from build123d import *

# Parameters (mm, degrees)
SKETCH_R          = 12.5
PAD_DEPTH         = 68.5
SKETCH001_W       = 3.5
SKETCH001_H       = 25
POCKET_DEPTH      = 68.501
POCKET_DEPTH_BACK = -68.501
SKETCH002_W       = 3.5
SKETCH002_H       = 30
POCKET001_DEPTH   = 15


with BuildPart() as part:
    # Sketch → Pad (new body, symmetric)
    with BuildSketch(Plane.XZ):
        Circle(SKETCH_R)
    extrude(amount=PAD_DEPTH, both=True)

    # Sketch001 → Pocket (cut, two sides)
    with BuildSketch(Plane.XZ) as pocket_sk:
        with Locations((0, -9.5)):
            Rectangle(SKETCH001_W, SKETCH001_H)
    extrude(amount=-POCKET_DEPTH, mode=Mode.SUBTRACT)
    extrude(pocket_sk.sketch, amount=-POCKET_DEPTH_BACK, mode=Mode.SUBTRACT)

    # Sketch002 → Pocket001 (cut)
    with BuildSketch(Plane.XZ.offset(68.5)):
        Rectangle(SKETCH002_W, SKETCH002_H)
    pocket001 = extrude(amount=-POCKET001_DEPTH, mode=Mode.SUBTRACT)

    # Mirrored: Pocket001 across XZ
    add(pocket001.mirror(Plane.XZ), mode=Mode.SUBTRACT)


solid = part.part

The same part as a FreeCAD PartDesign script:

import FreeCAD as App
import Part
import Sketcher
from FreeCAD import Vector
Q = App.Units.Quantity

doc = App.newDocument("Part")
body = doc.addObject("PartDesign::Body", "Body")

sketch1 = body.newObject("Sketcher::SketchObject", "Sketch")
sketch1.AttachmentSupport = (doc.getObject("XZ_Plane"), [""])
sketch1.MapMode = "FlatFace"
sketch1.addGeometry(Part.Circle(Vector(0, 0, 0), Vector(0, 0, 1), 12), False)
sketch1.addConstraint([
    Sketcher.Constraint("Coincident", 0, 3, -1, 1),
    Sketcher.Constraint("Diameter", 0, Q("25 mm")),
])
pad1 = body.newObject("PartDesign::Pad", "Pad")
pad1.Profile = sketch1
pad1.Length = 137
pad1.Midplane = True

sketch2 = body.newObject("Sketcher::SketchObject", "Sketch001")
sketch2.AttachmentSupport = (doc.getObject("XZ_Plane"), [""])
sketch2.MapMode = "FlatFace"
sketch2.addGeometry([
    Part.LineSegment(Vector(-1.8, 3, 0), Vector(-1.8, -22, 0)),
    Part.LineSegment(Vector(-1.8, -22, 0), Vector(1.8, -22, 0)),
    Part.LineSegment(Vector(1.8, -22, 0), Vector(1.8, 3, 0)),
    Part.LineSegment(Vector(1.8, 3, 0), Vector(-1.8, 3, 0)),
], False)
sketch2.addConstraint([
    Sketcher.Constraint("Coincident", 0, 2, 1, 1),
    Sketcher.Constraint("Coincident", 1, 2, 2, 1),
    Sketcher.Constraint("Coincident", 2, 2, 3, 1),
    Sketcher.Constraint("Coincident", 3, 2, 0, 1),
    Sketcher.Constraint("Vertical", 0),
    Sketcher.Constraint("Horizontal", 1),
    Sketcher.Constraint("Vertical", 2),
    Sketcher.Constraint("Horizontal", 3),
    Sketcher.Constraint("DistanceY", 0, 2, 0, 1, Q("25 mm")),
    Sketcher.Constraint("DistanceX", 1, 1, 1, 2, Q("3.5 mm")),
    Sketcher.Constraint("DistanceY", 0, 2, -1, 1, Q("22 mm")),
    Sketcher.Constraint("DistanceX", 0, 2, -1, 1, Q("1.75 mm")),
])
pocket1 = body.newObject("PartDesign::Pocket", "Pocket")
pocket1.Profile = sketch2
pocket1.Type = "ThroughAll"
pocket1.Midplane = True

sketch3 = body.newObject("Sketcher::SketchObject", "Sketch002")
sketch3.AttachmentSupport = (doc.getObject("XZ_Plane"), [""])
sketch3.MapMode = "FlatFace"
sketch3.AttachmentOffset = App.Placement(Vector(0, 0, 68.5), App.Rotation())
sketch3.addGeometry([
    Part.LineSegment(Vector(-1.8, 15, 0), Vector(-1.8, -15, 0)),
    Part.LineSegment(Vector(-1.8, -15, 0), Vector(1.8, -15, 0)),
    Part.LineSegment(Vector(1.8, -15, 0), Vector(1.8, 15, 0)),
    Part.LineSegment(Vector(1.8, 15, 0), Vector(-1.8, 15, 0)),
], False)
sketch3.addConstraint([
    Sketcher.Constraint("Coincident", 0, 2, 1, 1),
    Sketcher.Constraint("Coincident", 1, 2, 2, 1),
    Sketcher.Constraint("Coincident", 2, 2, 3, 1),
    Sketcher.Constraint("Coincident", 3, 2, 0, 1),
    Sketcher.Constraint("Vertical", 0),
    Sketcher.Constraint("Horizontal", 1),
    Sketcher.Constraint("Vertical", 2),
    Sketcher.Constraint("Horizontal", 3),
    Sketcher.Constraint("Symmetric", 0, 2, 2, 2, -1, 1),
    Sketcher.Constraint("DistanceY", 0, 2, 0, 1, Q("30 mm")),
    Sketcher.Constraint("DistanceX", 1, 1, 1, 2, Q("3.5 mm")),
])
pocket2 = body.newObject("PartDesign::Pocket", "Pocket001")
pocket2.Profile = sketch3
pocket2.Length = 15
doc.recompute()

mirrored = body.newObject("PartDesign::Mirrored", "Mirrored")
mirrored.Originals = [pocket2]
mirrored.MirrorPlane = (doc.getObject("XZ_Plane"), [""])
body.Tip = mirrored

doc.recompute()
